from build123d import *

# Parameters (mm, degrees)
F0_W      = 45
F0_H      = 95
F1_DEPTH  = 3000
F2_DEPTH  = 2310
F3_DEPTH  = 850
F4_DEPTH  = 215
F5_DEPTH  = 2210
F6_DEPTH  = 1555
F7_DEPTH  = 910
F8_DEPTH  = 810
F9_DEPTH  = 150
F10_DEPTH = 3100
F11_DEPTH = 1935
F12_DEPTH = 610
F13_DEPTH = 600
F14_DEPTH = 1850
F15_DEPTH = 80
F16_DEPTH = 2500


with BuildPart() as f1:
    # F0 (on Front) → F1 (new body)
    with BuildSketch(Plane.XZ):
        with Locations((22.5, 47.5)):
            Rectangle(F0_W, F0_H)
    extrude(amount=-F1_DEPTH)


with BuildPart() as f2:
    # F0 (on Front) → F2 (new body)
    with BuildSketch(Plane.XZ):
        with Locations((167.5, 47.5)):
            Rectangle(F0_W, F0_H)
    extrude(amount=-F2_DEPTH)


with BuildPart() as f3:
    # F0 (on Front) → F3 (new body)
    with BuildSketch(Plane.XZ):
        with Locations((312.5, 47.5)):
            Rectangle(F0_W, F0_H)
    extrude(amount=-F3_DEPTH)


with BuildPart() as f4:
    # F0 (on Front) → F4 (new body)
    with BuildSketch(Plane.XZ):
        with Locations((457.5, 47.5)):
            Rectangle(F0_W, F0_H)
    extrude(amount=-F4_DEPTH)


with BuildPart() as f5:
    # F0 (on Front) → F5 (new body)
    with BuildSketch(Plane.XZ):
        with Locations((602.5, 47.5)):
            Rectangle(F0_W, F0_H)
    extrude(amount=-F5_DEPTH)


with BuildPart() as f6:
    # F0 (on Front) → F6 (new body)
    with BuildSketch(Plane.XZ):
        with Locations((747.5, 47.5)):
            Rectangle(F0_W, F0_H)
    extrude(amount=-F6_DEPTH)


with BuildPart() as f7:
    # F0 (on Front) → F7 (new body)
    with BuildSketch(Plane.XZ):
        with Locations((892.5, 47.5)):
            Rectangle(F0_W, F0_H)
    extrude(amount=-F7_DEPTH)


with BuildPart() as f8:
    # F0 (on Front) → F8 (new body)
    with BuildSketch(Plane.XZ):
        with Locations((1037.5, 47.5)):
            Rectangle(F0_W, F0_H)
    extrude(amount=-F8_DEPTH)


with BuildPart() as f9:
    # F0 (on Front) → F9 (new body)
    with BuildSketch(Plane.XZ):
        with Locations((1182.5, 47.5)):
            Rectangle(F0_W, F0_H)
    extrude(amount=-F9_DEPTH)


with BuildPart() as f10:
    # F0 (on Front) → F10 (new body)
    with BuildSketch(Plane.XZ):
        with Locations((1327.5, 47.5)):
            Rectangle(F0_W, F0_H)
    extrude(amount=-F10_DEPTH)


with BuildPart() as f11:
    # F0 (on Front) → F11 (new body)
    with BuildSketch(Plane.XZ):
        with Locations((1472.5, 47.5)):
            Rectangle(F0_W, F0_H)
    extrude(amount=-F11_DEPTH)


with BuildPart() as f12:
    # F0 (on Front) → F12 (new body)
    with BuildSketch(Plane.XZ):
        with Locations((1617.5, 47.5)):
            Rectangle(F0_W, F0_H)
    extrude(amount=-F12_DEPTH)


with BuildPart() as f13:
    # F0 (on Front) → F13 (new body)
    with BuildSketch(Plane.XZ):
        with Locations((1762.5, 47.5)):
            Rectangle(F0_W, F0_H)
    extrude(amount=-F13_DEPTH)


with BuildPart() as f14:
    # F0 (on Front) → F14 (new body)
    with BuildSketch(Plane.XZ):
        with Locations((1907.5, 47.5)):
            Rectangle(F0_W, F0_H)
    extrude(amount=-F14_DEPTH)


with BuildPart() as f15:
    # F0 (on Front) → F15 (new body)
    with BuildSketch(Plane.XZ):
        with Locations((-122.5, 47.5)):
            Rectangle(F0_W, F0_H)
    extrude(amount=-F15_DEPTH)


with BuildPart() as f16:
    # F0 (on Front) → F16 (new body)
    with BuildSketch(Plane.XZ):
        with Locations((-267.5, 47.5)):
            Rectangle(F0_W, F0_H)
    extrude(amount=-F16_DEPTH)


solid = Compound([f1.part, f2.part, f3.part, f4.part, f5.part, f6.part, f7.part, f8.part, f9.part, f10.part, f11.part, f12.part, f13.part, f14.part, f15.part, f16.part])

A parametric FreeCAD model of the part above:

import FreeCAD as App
import Part
import Sketcher


def add_polygon(sketch, points):
    """Adds a closed chain of lines whose ends are joined by coincident constraints."""
    first, n = sketch.GeometryCount, len(points)
    for a, b in zip(points, points[1:] + points[:1]):
        sketch.addGeometry(Part.LineSegment(App.Vector(*a, 0), App.Vector(*b, 0)), False)
    for i in range(n):
        sketch.addConstraint(Sketcher.Constraint("Coincident", first + i, 2, first + (i + 1) % n, 1))

doc = App.newDocument("Part")
body = doc.addObject("PartDesign::Body", "Body")

sketch1 = body.newObject("Sketcher::SketchObject", "Sketch")
sketch1.AttachmentSupport = (doc.getObject("XZ_Plane"), [""])
sketch1.MapMode = "FlatFace"
add_polygon(sketch1, [(0, 95), (0, 0), (45, 0), (45, 95)])
sketch1.addConstraint([
    Sketcher.Constraint("Vertical", 0),
    Sketcher.Constraint("Horizontal", 1),
    Sketcher.Constraint("Vertical", 2),
    Sketcher.Constraint("Horizontal", 3),
    Sketcher.Constraint("Coincident", 0, 2, -1, 1),
    Sketcher.Constraint("DistanceX", 1, 1, 1, 2, 45.0),
    Sketcher.Constraint("DistanceY", 0, 2, 0, 1, 95.0),
])
pad1 = body.newObject("PartDesign::Pad", "Pad")
pad1.Profile = sketch1
pad1.Length = 3000
pad1.Reversed = True
body2 = doc.addObject("PartDesign::Body", "Body001")

sketch2 = body2.newObject("Sketcher::SketchObject", "Sketch001")
sketch2.AttachmentSupport = (doc.getObject("XZ_Plane001"), [""])
sketch2.MapMode = "FlatFace"
add_polygon(sketch2, [(145, 95), (145, 0), (190, 0), (190, 95)])
sketch2.addConstraint([
    Sketcher.Constraint("Vertical", 0),
    Sketcher.Constraint("Horizontal", 1),
    Sketcher.Constraint("Vertical", 2),
    Sketcher.Constraint("Horizontal", 3),
    Sketcher.Constraint("PointOnObject", 0, 2, -1),
    Sketcher.Constraint("DistanceX", 1, 1, 1, 2, 45.0),
    Sketcher.Constraint("DistanceY", 0, 2, 0, 1, 95.0),
    Sketcher.Constraint("DistanceX", -1, 1, 0, 2, 145.0),
])
pad2 = body2.newObject("PartDesign::Pad", "Pad001")
pad2.Profile = sketch2
pad2.Length = 2310
pad2.Reversed = True
body3 = doc.addObject("PartDesign::Body", "Body002")

sketch3 = body3.newObject("Sketcher::SketchObject", "Sketch002")
sketch3.AttachmentSupport = (doc.getObject("XZ_Plane002"), [""])
sketch3.MapMode = "FlatFace"
add_polygon(sketch3, [(290, 95), (290, 0), (335, 0), (335, 95)])
sketch3.addConstraint([
    Sketcher.Constraint("Vertical", 0),
    Sketcher.Constraint("Horizontal", 1),
    Sketcher.Constraint("Vertical", 2),
    Sketcher.Constraint("Horizontal", 3),
    Sketcher.Constraint("PointOnObject", 0, 2, -1),
    Sketcher.Constraint("DistanceX", 1, 1, 1, 2, 45.0),
    Sketcher.Constraint("DistanceY", 0, 2, 0, 1, 95.0),
    Sketcher.Constraint("DistanceX", -1, 1, 0, 2, 290.0),
])
pad3 = body3.newObject("PartDesign::Pad", "Pad002")
pad3.Profile = sketch3
pad3.Length = 850
pad3.Reversed = True
body4 = doc.addObject("PartDesign::Body", "Body003")

sketch4 = body4.newObject("Sketcher::SketchObject", "Sketch003")
sketch4.AttachmentSupport = (doc.getObject("XZ_Plane003"), [""])
sketch4.MapMode = "FlatFace"
add_polygon(sketch4, [(435, 95), (435, 0), (480, 0), (480, 95)])
sketch4.addConstraint([
    Sketcher.Constraint("Vertical", 0),
    Sketcher.Constraint("Horizontal", 1),
    Sketcher.Constraint("Vertical", 2),
    Sketcher.Constraint("Horizontal", 3),
    Sketcher.Constraint("PointOnObject", 0, 2, -1),
    Sketcher.Constraint("DistanceX", 1, 1, 1, 2, 45.0),
    Sketcher.Constraint("DistanceY", 0, 2, 0, 1, 95.0),
    Sketcher.Constraint("DistanceX", -1, 1, 0, 2, 435.0),
])
pad4 = body4.newObject("PartDesign::Pad", "Pad003")
pad4.Profile = sketch4
pad4.Length = 215
pad4.Reversed = True
body5 = doc.addObject("PartDesign::Body", "Body004")

sketch5 = body5.newObject("Sketcher::SketchObject", "Sketch004")
sketch5.AttachmentSupport = (doc.getObject("XZ_Plane004"), [""])
sketch5.MapMode = "FlatFace"
add_polygon(sketch5, [(580, 95), (580, 0), (625, 0), (625, 95)])
sketch5.addConstraint([
    Sketcher.Constraint("Vertical", 0),
    Sketcher.Constraint("Horizontal", 1),
    Sketcher.Constraint("Vertical", 2),
    Sketcher.Constraint("Horizontal", 3),
    Sketcher.Constraint("PointOnObject", 0, 2, -1),
    Sketcher.Constraint("DistanceX", 1, 1, 1, 2, 45.0),
    Sketcher.Constraint("DistanceY", 0, 2, 0, 1, 95.0),
    Sketcher.Constraint("DistanceX", -1, 1, 0, 2, 580.0),
])
pad5 = body5.newObject("PartDesign::Pad", "Pad004")
pad5.Profile = sketch5
pad5.Length = 2210
pad5.Reversed = True
body6 = doc.addObject("PartDesign::Body", "Body005")

sketch6 = body6.newObject("Sketcher::SketchObject", "Sketch005")
sketch6.AttachmentSupport = (doc.getObject("XZ_Plane005"), [""])
sketch6.MapMode = "FlatFace"
add_polygon(sketch6, [(725, 95), (725, 0), (770, 0), (770, 95)])
sketch6.addConstraint([
    Sketcher.Constraint("Vertical", 0),
    Sketcher.Constraint("Horizontal", 1),
    Sketcher.Constraint("Vertical", 2),
    Sketcher.Constraint("Horizontal", 3),
    Sketcher.Constraint("PointOnObject", 0, 2, -1),
    Sketcher.Constraint("DistanceX", 1, 1, 1, 2, 45.0),
    Sketcher.Constraint("DistanceY", 0, 2, 0, 1, 95.0),
    Sketcher.Constraint("DistanceX", -1, 1, 0, 2, 725.0),
])
pad6 = body6.newObject("PartDesign::Pad", "Pad005")
pad6.Profile = sketch6
pad6.Length = 1555
pad6.Reversed = True
body7 = doc.addObject("PartDesign::Body", "Body006")

sketch7 = body7.newObject("Sketcher::SketchObject", "Sketch006")
sketch7.AttachmentSupport = (doc.getObject("XZ_Plane006"), [""])
sketch7.MapMode = "FlatFace"
add_polygon(sketch7, [(870, 95), (870, 0), (915, 0), (915, 95)])
sketch7.addConstraint([
    Sketcher.Constraint("Vertical", 0),
    Sketcher.Constraint("Horizontal", 1),
    Sketcher.Constraint("Vertical", 2),
    Sketcher.Constraint("Horizontal", 3),
    Sketcher.Constraint("PointOnObject", 0, 2, -1),
    Sketcher.Constraint("DistanceX", 1, 1, 1, 2, 45.0),
    Sketcher.Constraint("DistanceY", 0, 2, 0, 1, 95.0),
    Sketcher.Constraint("DistanceX", -1, 1, 0, 2, 870.0),
])
pad7 = body7.newObject("PartDesign::Pad", "Pad006")
pad7.Profile = sketch7
pad7.Length = 910
pad7.Reversed = True
body8 = doc.addObject("PartDesign::Body", "Body007")

sketch8 = body8.newObject("Sketcher::SketchObject", "Sketch007")
sketch8.AttachmentSupport = (doc.getObject("XZ_Plane007"), [""])
sketch8.MapMode = "FlatFace"
add_polygon(sketch8, [(1015, 95), (1015, 0), (1060, 0), (1060, 95)])
sketch8.addConstraint([
    Sketcher.Constraint("Vertical", 0),
    Sketcher.Constraint("Horizontal", 1),
    Sketcher.Constraint("Vertical", 2),
    Sketcher.Constraint("Horizontal", 3),
    Sketcher.Constraint("PointOnObject", 0, 2, -1),
    Sketcher.Constraint("DistanceX", 1, 1, 1, 2, 45.0),
    Sketcher.Constraint("DistanceY", 0, 2, 0, 1, 95.0),
    Sketcher.Constraint("DistanceX", -1, 1, 0, 2, 1015.0),
])
pad8 = body8.newObject("PartDesign::Pad", "Pad007")
pad8.Profile = sketch8
pad8.Length = 810
pad8.Reversed = True
body9 = doc.addObject("PartDesign::Body", "Body008")

sketch9 = body9.newObject("Sketcher::SketchObject", "Sketch008")
sketch9.AttachmentSupport = (doc.getObject("XZ_Plane008"), [""])
sketch9.MapMode = "FlatFace"
add_polygon(sketch9, [(1160, 95), (1160, 0), (1205, 0), (1205, 95)])
sketch9.addConstraint([
    Sketcher.Constraint("Vertical", 0),
    Sketcher.Constraint("Horizontal", 1),
    Sketcher.Constraint("Vertical", 2),
    Sketcher.Constraint("Horizontal", 3),
    Sketcher.Constraint("PointOnObject", 0, 2, -1),
    Sketcher.Constraint("DistanceX", 1, 1, 1, 2, 45.0),
    Sketcher.Constraint("DistanceY", 0, 2, 0, 1, 95.0),
    Sketcher.Constraint("DistanceX", -1, 1, 0, 2, 1160.0),
])
pad9 = body9.newObject("PartDesign::Pad", "Pad008")
pad9.Profile = sketch9
pad9.Length = 150
pad9.Reversed = True
body10 = doc.addObject("PartDesign::Body", "Body009")

sketch10 = body10.newObject("Sketcher::SketchObject", "Sketch009")
sketch10.AttachmentSupport = (doc.getObject("XZ_Plane009"), [""])
sketch10.MapMode = "FlatFace"
add_polygon(sketch10, [(1305, 95), (1305, 0), (1350, 0), (1350, 95)])
sketch10.addConstraint([
    Sketcher.Constraint("Vertical", 0),
    Sketcher.Constraint("Horizontal", 1),
    Sketcher.Constraint("Vertical", 2),
    Sketcher.Constraint("Horizontal", 3),
    Sketcher.Constraint("PointOnObject", 0, 2, -1),
    Sketcher.Constraint("DistanceX", 1, 1, 1, 2, 45.0),
    Sketcher.Constraint("DistanceY", 0, 2, 0, 1, 95.0),
    Sketcher.Constraint("DistanceX", -1, 1, 0, 2, 1305.0),
])
pad10 = body10.newObject("PartDesign::Pad", "Pad009")
pad10.Profile = sketch10
pad10.Length = 3100
pad10.Reversed = True
body11 = doc.addObject("PartDesign::Body", "Body010")

sketch11 = body11.newObject("Sketcher::SketchObject", "Sketch010")
sketch11.AttachmentSupport = (doc.getObject("XZ_Plane010"), [""])
sketch11.MapMode = "FlatFace"
add_polygon(sketch11, [(1450, 95), (1450, 0), (1495, 0), (1495, 95)])
sketch11.addConstraint([
    Sketcher.Constraint("Vertical", 0),
    Sketcher.Constraint("Horizontal", 1),
    Sketcher.Constraint("Vertical", 2),
    Sketcher.Constraint("Horizontal", 3),
    Sketcher.Constraint("PointOnObject", 0, 2, -1),
    Sketcher.Constraint("DistanceX", 1, 1, 1, 2, 45.0),
    Sketcher.Constraint("DistanceY", 0, 2, 0, 1, 95.0),
    Sketcher.Constraint("DistanceX", -1, 1, 0, 2, 1450.0),
])
pad11 = body11.newObject("PartDesign::Pad", "Pad010")
pad11.Profile = sketch11
pad11.Length = 1935
pad11.Reversed = True
body12 = doc.addObject("PartDesign::Body", "Body011")

sketch12 = body12.newObject("Sketcher::SketchObject", "Sketch011")
sketch12.AttachmentSupport = (doc.getObject("XZ_Plane011"), [""])
sketch12.MapMode = "FlatFace"
add_polygon(sketch12, [(1595, 95), (1595, 0), (1640, 0), (1640, 95)])
sketch12.addConstraint([
    Sketcher.Constraint("Vertical", 0),
    Sketcher.Constraint("Horizontal", 1),
    Sketcher.Constraint("Vertical", 2),
    Sketcher.Constraint("Horizontal", 3),
    Sketcher.Constraint("PointOnObject", 0, 2, -1),
    Sketcher.Constraint("DistanceX", 1, 1, 1, 2, 45.0),
    Sketcher.Constraint("DistanceY", 0, 2, 0, 1, 95.0),
    Sketcher.Constraint("DistanceX", -1, 1, 0, 2, 1595.0),
])
pad12 = body12.newObject("PartDesign::Pad", "Pad011")
pad12.Profile = sketch12
pad12.Length = 610
pad12.Reversed = True
body13 = doc.addObject("PartDesign::Body", "Body012")

sketch13 = body13.newObject("Sketcher::SketchObject", "Sketch012")
sketch13.AttachmentSupport = (doc.getObject("XZ_Plane012"), [""])
sketch13.MapMode = "FlatFace"
add_polygon(sketch13, [(1740, 95), (1740, 0), (1785, 0), (1785, 95)])
sketch13.addConstraint([
    Sketcher.Constraint("Vertical", 0),
    Sketcher.Constraint("Horizontal", 1),
    Sketcher.Constraint("Vertical", 2),
    Sketcher.Constraint("Horizontal", 3),
    Sketcher.Constraint("PointOnObject", 0, 2, -1),
    Sketcher.Constraint("DistanceX", 1, 1, 1, 2, 45.0),
    Sketcher.Constraint("DistanceY", 0, 2, 0, 1, 95.0),
    Sketcher.Constraint("DistanceX", -1, 1, 0, 2, 1740.0),
])
pad13 = body13.newObject("PartDesign::Pad", "Pad012")
pad13.Profile = sketch13
pad13.Length = 600
pad13.Reversed = True
body14 = doc.addObject("PartDesign::Body", "Body013")

sketch14 = body14.newObject("Sketcher::SketchObject", "Sketch013")
sketch14.AttachmentSupport = (doc.getObject("XZ_Plane013"), [""])
sketch14.MapMode = "FlatFace"
add_polygon(sketch14, [(1885, 95), (1885, 0), (1930, 0), (1930, 95)])
sketch14.addConstraint([
    Sketcher.Constraint("Vertical", 0),
    Sketcher.Constraint("Horizontal", 1),
    Sketcher.Constraint("Vertical", 2),
    Sketcher.Constraint("Horizontal", 3),
    Sketcher.Constraint("PointOnObject", 0, 2, -1),
    Sketcher.Constraint("DistanceX", 1, 1, 1, 2, 45.0),
    Sketcher.Constraint("DistanceY", 0, 2, 0, 1, 95.0),
    Sketcher.Constraint("DistanceX", -1, 1, 0, 2, 1885.0),
])
pad14 = body14.newObject("PartDesign::Pad", "Pad013")
pad14.Profile = sketch14
pad14.Length = 1850
pad14.Reversed = True
body15 = doc.addObject("PartDesign::Body", "Body014")

sketch15 = body15.newObject("Sketcher::SketchObject", "Sketch014")
sketch15.AttachmentSupport = (doc.getObject("XZ_Plane014"), [""])
sketch15.MapMode = "FlatFace"
add_polygon(sketch15, [(-145, 95), (-145, 0), (-100, 0), (-100, 95)])
sketch15.addConstraint([
    Sketcher.Constraint("Vertical", 0),
    Sketcher.Constraint("Horizontal", 1),
    Sketcher.Constraint("Vertical", 2),
    Sketcher.Constraint("Horizontal", 3),
    Sketcher.Constraint("PointOnObject", 0, 2, -1),
    Sketcher.Constraint("DistanceX", 1, 1, 1, 2, 45.0),
    Sketcher.Constraint("DistanceY", 0, 2, 0, 1, 95.0),
    Sketcher.Constraint("DistanceX", 0, 2, -1, 1, 145.0),
])
pad15 = body15.newObject("PartDesign::Pad", "Pad014")
pad15.Profile = sketch15
pad15.Length = 80
pad15.Reversed = True
body16 = doc.addObject("PartDesign::Body", "Body015")

sketch16 = body16.newObject("Sketcher::SketchObject", "Sketch015")
sketch16.AttachmentSupport = (doc.getObject("XZ_Plane015"), [""])
sketch16.MapMode = "FlatFace"
add_polygon(sketch16, [(-290, 95), (-290, 0), (-245, 0), (-245, 95)])
sketch16.addConstraint([
    Sketcher.Constraint("Vertical", 0),
    Sketcher.Constraint("Horizontal", 1),
    Sketcher.Constraint("Vertical", 2),
    Sketcher.Constraint("Horizontal", 3),
    Sketcher.Constraint("PointOnObject", 0, 2, -1),
    Sketcher.Constraint("DistanceX", 1, 1, 1, 2, 45.0),
    Sketcher.Constraint("DistanceY", 0, 2, 0, 1, 95.0),
    Sketcher.Constraint("DistanceX", 0, 2, -1, 1, 290.0),
])
pad16 = body16.newObject("PartDesign::Pad", "Pad015")
pad16.Profile = sketch16
pad16.Length = 2500
pad16.Reversed = True

doc.recompute()
